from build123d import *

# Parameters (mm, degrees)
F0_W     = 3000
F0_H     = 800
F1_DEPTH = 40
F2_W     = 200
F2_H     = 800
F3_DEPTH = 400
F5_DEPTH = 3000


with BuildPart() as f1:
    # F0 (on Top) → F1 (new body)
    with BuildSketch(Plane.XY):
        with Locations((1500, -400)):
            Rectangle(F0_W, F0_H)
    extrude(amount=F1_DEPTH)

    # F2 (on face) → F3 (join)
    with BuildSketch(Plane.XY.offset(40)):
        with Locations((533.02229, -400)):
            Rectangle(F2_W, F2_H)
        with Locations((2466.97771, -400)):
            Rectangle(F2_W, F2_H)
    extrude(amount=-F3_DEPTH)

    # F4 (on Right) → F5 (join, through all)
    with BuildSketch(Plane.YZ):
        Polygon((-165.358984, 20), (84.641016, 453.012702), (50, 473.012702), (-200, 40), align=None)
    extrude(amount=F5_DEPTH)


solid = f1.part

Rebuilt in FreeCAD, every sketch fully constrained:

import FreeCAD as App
import Part
import Sketcher

V = App.Vector
Q = App.Units.Quantity

doc = App.newDocument("Part")
params = doc.addObject("Spreadsheet::Sheet", "Params")
for row, (alias, value) in enumerate([
    ("sketch1_width", "3000 mm"),
    ("sketch1_height", "800 mm"),
    ("pad1_length", "40 mm"),
    ("sketch2_width", "200 mm"),
    ("sketch2_height", "800 mm"),
    ("pad2_length", "400 mm"),
    ("sketch3_length", "500 mm"),
    ("sketch3_length2", "40 mm"),
    ("pad3_length", "3000 mm"),
], start=1):
    params.set(f"A{row}", alias)
    params.set(f"B{row}", "=" + value)
    params.setAlias(f"B{row}", alias)

body = doc.addObject("PartDesign::Body", "Body")

sketch1 = body.newObject("Sketcher::SketchObject", "Sketch")
sketch1.AttachmentSupport = (doc.getObject("XY_Plane"), [""])
sketch1.MapMode = "FlatFace"
sketch1.addGeometry(Part.LineSegment(V(0, 0, 0), V(0, -800, 0)), False)
sketch1.addGeometry(Part.LineSegment(V(0, -800, 0), V(3000, -800, 0)), False)
sketch1.addGeometry(Part.LineSegment(V(3000, -800, 0), V(3000, 0, 0)), False)
sketch1.addGeometry(Part.LineSegment(V(3000, 0, 0), V(0, 0, 0)), False)
sketch1.addConstraint(Sketcher.Constraint("Coincident", 0, 2, 1, 1))
sketch1.addConstraint(Sketcher.Constraint("Coincident", 1, 2, 2, 1))
sketch1.addConstraint(Sketcher.Constraint("Coincident", 2, 2, 3, 1))
sketch1.addConstraint(Sketcher.Constraint("Coincident", 3, 2, 0, 1))
sketch1.addConstraint(Sketcher.Constraint("Vertical", 0))
sketch1.addConstraint(Sketcher.Constraint("Horizontal", 1))
sketch1.addConstraint(Sketcher.Constraint("Vertical", 2))
sketch1.addConstraint(Sketcher.Constraint("Horizontal", 3))
sketch1.addConstraint(Sketcher.Constraint("Coincident", 3, 2, -1, 1))
sketch1.addConstraint(Sketcher.Constraint("DistanceX", 1, 1, 1, 2, Q("3000 mm")))
sketch1.addConstraint(Sketcher.Constraint("DistanceY", 0, 2, 0, 1, Q("800 mm")))
sketch1.setExpression("Constraints[9]", "Params.sketch1_width")
sketch1.setExpression("Constraints[10]", "Params.sketch1_height")
pad1 = body.newObject("PartDesign::Pad", "Pad")
pad1.Profile = sketch1
pad1.setExpression("Length", "Params.pad1_length")

sketch2 = body.newObject("Sketcher::SketchObject", "Sketch001")
sketch2.AttachmentSupport = (doc.getObject("XY_Plane"), [""])
sketch2.MapMode = "FlatFace"
sketch2.AttachmentOffset = App.Placement(V(0, 0, 40), App.Rotation())
sketch2.addGeometry(Part.LineSegment(V(433, 0, 0), V(433, -800, 0)), False)
sketch2.addGeometry(Part.LineSegment(V(433, -800, 0), V(633, -800, 0)), False)
sketch2.addGeometry(Part.LineSegment(V(633, -800, 0), V(633, 0, 0)), False)
sketch2.addGeometry(Part.LineSegment(V(633, 0, 0), V(433, 0, 0)), False)
sketch2.addGeometry(Part.LineSegment(V(2367, 0, 0), V(2367, -800, 0)), False)
sketch2.addGeometry(Part.LineSegment(V(2367, -800, 0), V(2567, -800, 0)), False)
sketch2.addGeometry(Part.LineSegment(V(2567, -800, 0), V(2567, 0, 0)), False)
sketch2.addGeometry(Part.LineSegment(V(2567, 0, 0), V(2367, 0, 0)), False)
sketch2.addConstraint(Sketcher.Constraint("Coincident", 0, 2, 1, 1))
sketch2.addConstraint(Sketcher.Constraint("Coincident", 1, 2, 2, 1))
sketch2.addConstraint(Sketcher.Constraint("Coincident", 2, 2, 3, 1))
sketch2.addConstraint(Sketcher.Constraint("Coincident", 3, 2, 0, 1))
sketch2.addConstraint(Sketcher.Constraint("Coincident", 4, 2, 5, 1))
sketch2.addConstraint(Sketcher.Constraint("Coincident", 5, 2, 6, 1))
sketch2.addConstraint(Sketcher.Constraint("Coincident", 6, 2, 7, 1))
sketch2.addConstraint(Sketcher.Constraint("Coincident", 7, 2, 4, 1))
sketch2.addConstraint(Sketcher.Constraint("Vertical", 0))
sketch2.addConstraint(Sketcher.Constraint("Horizontal", 1))
sketch2.addConstraint(Sketcher.Constraint("Vertical", 2))
sketch2.addConstraint(Sketcher.Constraint("Horizontal", 3))
sketch2.addConstraint(Sketcher.Constraint("Vertical", 4))
sketch2.addConstraint(Sketcher.Constraint("Horizontal", 5))
sketch2.addConstraint(Sketcher.Constraint("Vertical", 6))
sketch2.addConstraint(Sketcher.Constraint("Horizontal", 7))
sketch2.addConstraint(Sketcher.Constraint("PointOnObject", 2, 2, -1))
sketch2.addConstraint(Sketcher.Constraint("PointOnObject", 6, 2, -1))
sketch2.addConstraint(Sketcher.Constraint("Horizontal", 1, 2, 4, 2))
sketch2.addConstraint(Sketcher.Constraint("Equal", 3, 5))
sketch2.addConstraint(Sketcher.Constraint("DistanceX", 1, 1, 1, 2, Q("200 mm")))
sketch2.addConstraint(Sketcher.Constraint("DistanceY", 0, 2, 0, 1, Q("800 mm")))
sketch2.addConstraint(Sketcher.Constraint("DistanceX", -1, 1, 0, 2, Q("433.02229 mm")))
sketch2.addConstraint(Sketcher.Constraint("DistanceX", -1, 1, 4, 2, Q("2366.97771 mm")))
sketch2.setExpression("Constraints[20]", "Params.sketch2_width")
sketch2.setExpression("Constraints[21]", "Params.sketch2_height")
pad2 = body.newObject("PartDesign::Pad", "Pad001")
pad2.Profile = sketch2
pad2.setExpression("Length", "Params.pad2_length")
pad2.Reversed = True

sketch3 = body.newObject("Sketcher::SketchObject", "Sketch002")
sketch3.AttachmentSupport = (doc.getObject("YZ_Plane"), [""])
sketch3.MapMode = "FlatFace"
sketch3.addGeometry(Part.LineSegment(V(-165, 20, 0), V(85, 453, 0)), False)
sketch3.addGeometry(Part.LineSegment(V(85, 453, 0), V(50, 473, 0)), False)
sketch3.addGeometry(Part.LineSegment(V(50, 473, 0), V(-200, 40, 0)), False)
sketch3.addGeometry(Part.LineSegment(V(-200, 40, 0), V(-165, 20, 0)), False)
sketch3.addConstraint(Sketcher.Constraint("Coincident", 0, 2, 1, 1))
sketch3.addConstraint(Sketcher.Constraint("Coincident", 1, 2, 2, 1))
sketch3.addConstraint(Sketcher.Constraint("Coincident", 2, 2, 3, 1))
sketch3.addConstraint(Sketcher.Constraint("Coincident", 3, 2, 0, 1))
sketch3.addConstraint(Sketcher.Constraint("Perpendicular", 0, 1))
sketch3.addConstraint(Sketcher.Constraint("Perpendicular", 1, 2))
sketch3.addConstraint(Sketcher.Constraint("Perpendicular", 2, 3))
sketch3.addConstraint(Sketcher.Constraint("Angle", 0, Q("60 deg")))
sketch3.addConstraint(Sketcher.Constraint("Distance", 0, Q("500 mm")))
sketch3.addConstraint(Sketcher.Constraint("Distance", 1, Q("40 mm")))
sketch3.addConstraint(Sketcher.Constraint("DistanceX", -1, 1, 1, 2, Q("50 mm")))
sketch3.addConstraint(Sketcher.Constraint("DistanceY", -1, 1, 2, 2, Q("40 mm")))
sketch3.setExpression("Constraints[8]", "Params.sketch3_length")
sketch3.setExpression("Constraints[9]", "Params.sketch3_length2")
pad3 = body.newObject("PartDesign::Pad", "Pad002")
pad3.Profile = sketch3
pad3.setExpression("Length", "Params.pad3_length")

doc.recompute()
